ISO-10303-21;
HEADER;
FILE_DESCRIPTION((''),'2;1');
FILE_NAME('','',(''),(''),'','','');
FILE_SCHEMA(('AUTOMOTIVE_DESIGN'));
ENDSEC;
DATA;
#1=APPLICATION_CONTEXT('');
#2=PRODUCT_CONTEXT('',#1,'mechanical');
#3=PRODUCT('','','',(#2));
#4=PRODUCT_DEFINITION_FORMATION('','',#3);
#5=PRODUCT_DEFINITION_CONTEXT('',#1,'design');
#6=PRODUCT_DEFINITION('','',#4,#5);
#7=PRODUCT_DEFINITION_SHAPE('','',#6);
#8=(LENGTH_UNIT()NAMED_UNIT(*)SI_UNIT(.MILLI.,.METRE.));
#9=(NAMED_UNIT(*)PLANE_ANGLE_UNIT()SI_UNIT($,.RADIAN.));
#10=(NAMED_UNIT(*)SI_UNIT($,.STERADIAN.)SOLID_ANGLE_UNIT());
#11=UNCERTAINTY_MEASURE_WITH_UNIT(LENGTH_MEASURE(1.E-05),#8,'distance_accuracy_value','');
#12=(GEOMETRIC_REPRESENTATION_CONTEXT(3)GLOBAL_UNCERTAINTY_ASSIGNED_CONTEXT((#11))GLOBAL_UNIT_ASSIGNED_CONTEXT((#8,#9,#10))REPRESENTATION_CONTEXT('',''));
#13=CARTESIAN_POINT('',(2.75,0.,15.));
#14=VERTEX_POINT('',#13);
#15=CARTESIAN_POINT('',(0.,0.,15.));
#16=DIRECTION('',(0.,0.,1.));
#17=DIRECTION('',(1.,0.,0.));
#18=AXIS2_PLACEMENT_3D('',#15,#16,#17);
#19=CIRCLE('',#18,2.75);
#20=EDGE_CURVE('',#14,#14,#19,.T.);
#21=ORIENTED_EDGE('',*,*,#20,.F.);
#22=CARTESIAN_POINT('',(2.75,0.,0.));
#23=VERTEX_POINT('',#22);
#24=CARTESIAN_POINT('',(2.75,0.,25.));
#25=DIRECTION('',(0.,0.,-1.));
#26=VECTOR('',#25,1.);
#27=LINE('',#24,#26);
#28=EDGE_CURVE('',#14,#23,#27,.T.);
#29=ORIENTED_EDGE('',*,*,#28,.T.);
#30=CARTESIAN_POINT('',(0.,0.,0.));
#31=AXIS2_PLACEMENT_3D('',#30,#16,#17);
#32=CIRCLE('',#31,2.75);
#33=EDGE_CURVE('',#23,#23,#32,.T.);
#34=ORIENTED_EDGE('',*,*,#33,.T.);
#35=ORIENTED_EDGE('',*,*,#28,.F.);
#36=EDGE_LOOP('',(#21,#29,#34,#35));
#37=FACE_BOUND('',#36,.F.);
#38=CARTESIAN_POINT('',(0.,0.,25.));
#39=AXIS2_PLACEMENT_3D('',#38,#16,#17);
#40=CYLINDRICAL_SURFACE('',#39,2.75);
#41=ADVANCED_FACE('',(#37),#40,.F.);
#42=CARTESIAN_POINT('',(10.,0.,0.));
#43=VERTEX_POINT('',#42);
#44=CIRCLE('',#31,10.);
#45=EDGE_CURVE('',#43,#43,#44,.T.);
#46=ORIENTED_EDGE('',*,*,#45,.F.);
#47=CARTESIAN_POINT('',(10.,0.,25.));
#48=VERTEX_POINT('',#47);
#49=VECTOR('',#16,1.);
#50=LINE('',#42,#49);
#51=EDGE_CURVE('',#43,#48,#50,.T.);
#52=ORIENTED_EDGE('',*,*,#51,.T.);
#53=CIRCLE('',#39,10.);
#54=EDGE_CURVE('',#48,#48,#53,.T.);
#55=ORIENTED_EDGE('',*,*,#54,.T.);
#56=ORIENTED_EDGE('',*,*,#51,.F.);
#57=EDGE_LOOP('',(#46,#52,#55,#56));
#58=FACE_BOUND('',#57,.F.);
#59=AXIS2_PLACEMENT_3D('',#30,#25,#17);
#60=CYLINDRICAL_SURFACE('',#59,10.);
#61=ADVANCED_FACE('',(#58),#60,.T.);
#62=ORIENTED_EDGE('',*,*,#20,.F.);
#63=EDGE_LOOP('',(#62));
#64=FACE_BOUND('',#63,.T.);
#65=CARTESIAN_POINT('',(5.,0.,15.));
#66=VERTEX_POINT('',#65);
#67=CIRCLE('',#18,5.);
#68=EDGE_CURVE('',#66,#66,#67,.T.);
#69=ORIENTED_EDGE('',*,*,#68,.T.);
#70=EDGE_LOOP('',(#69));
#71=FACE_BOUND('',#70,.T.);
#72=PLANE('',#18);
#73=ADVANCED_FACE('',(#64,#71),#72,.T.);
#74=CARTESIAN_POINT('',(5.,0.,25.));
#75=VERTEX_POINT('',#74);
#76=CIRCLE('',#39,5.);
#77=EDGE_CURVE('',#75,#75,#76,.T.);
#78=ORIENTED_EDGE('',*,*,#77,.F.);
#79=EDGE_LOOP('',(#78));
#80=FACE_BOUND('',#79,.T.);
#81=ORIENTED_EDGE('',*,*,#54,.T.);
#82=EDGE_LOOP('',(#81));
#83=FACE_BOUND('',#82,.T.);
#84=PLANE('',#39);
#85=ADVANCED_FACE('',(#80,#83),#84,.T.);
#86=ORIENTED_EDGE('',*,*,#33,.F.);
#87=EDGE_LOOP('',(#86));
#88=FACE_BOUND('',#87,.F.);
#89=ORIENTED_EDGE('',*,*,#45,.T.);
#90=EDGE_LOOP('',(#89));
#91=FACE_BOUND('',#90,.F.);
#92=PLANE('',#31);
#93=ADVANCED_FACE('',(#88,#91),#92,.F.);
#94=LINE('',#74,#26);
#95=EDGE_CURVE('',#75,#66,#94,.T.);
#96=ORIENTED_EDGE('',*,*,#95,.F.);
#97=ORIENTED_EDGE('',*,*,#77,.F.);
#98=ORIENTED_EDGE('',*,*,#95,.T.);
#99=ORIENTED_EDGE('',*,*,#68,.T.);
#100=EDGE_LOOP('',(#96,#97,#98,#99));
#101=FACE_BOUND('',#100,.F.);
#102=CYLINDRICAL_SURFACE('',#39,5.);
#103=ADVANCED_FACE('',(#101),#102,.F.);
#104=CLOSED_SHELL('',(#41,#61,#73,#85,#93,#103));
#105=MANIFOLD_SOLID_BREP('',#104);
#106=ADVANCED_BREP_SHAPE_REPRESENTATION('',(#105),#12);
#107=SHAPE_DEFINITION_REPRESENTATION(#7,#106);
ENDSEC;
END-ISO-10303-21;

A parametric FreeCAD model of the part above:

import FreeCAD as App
import Part
import Sketcher
from FreeCAD import Vector

doc = App.newDocument("Part")
params = doc.addObject("Spreadsheet::Sheet", "Params")
for row, (alias, value) in enumerate([
    ("sketch1_diameter", "20 mm"),
    ("pad1_length", "25 mm"),
    ("sketch2_diameter", "5.5 mm"),
    ("sketch3_diameter", "10 mm"),
    ("pocket2_length", "10 mm"),
], start=1):
    params.set(f"A{row}", alias)
    params.set(f"B{row}", "=" + value)
    params.setAlias(f"B{row}", alias)

body = doc.addObject("PartDesign::Body", "Body")

# Sketch on XY plane
sketch1 = body.newObject("Sketcher::SketchObject", "Sketch")
sketch1.AttachmentSupport = (doc.getObject("XY_Plane"), [""])
sketch1.MapMode = "FlatFace"
sketch1.addGeometry(Part.Circle(Vector(0, 0, 0), Vector(0, 0, 1), 10), False)
sketch1.addConstraint([
    Sketcher.Constraint("Coincident", 0, 3, -1, 1),
    Sketcher.Constraint("Diameter", 0, 20.0),
])
sketch1.setExpression("Constraints[1]", "Params.sketch1_diameter")
pad1 = body.newObject("PartDesign::Pad", "Pad")
pad1.Profile = sketch1
pad1.setExpression("Length", "Params.pad1_length")

# Sketch on XY plane
sketch2 = body.newObject("Sketcher::SketchObject", "Sketch001")
sketch2.AttachmentSupport = (doc.getObject("XY_Plane"), [""])
sketch2.MapMode = "FlatFace"
sketch2.AttachmentOffset = App.Placement(Vector(0, 0, 25), App.Rotation())
sketch2.addGeometry(Part.Circle(Vector(0, 0, 0), Vector(0, 0, 1), 2.8), False)
sketch2.addConstraint([
    Sketcher.Constraint("Coincident", 0, 3, -1, 1),
    Sketcher.Constraint("Diameter", 0, 5.5),
])
sketch2.setExpression("Constraints[1]", "Params.sketch2_diameter")
pocket1 = body.newObject("PartDesign::Pocket", "Pocket")
pocket1.Profile = sketch2
pocket1.Type = "ThroughAll"

# Sketch on XY plane
sketch3 = body.newObject("Sketcher::SketchObject", "Sketch002")
sketch3.AttachmentSupport = (doc.getObject("XY_Plane"), [""])
sketch3.MapMode = "FlatFace"
sketch3.AttachmentOffset = App.Placement(Vector(0, 0, 25), App.Rotation())
sketch3.addGeometry(Part.Circle(Vector(0, 0, 0), Vector(0, 0, 1), 5), False)
sketch3.addConstraint([
    Sketcher.Constraint("Coincident", 0, 3, -1, 1),
    Sketcher.Constraint("Diameter", 0, 10.0),
])
sketch3.setExpression("Constraints[1]", "Params.sketch3_diameter")
pocket2 = body.newObject("PartDesign::Pocket", "Pocket001")
pocket2.Profile = sketch3
pocket2.setExpression("Length", "Params.pocket2_length")

doc.recompute()
